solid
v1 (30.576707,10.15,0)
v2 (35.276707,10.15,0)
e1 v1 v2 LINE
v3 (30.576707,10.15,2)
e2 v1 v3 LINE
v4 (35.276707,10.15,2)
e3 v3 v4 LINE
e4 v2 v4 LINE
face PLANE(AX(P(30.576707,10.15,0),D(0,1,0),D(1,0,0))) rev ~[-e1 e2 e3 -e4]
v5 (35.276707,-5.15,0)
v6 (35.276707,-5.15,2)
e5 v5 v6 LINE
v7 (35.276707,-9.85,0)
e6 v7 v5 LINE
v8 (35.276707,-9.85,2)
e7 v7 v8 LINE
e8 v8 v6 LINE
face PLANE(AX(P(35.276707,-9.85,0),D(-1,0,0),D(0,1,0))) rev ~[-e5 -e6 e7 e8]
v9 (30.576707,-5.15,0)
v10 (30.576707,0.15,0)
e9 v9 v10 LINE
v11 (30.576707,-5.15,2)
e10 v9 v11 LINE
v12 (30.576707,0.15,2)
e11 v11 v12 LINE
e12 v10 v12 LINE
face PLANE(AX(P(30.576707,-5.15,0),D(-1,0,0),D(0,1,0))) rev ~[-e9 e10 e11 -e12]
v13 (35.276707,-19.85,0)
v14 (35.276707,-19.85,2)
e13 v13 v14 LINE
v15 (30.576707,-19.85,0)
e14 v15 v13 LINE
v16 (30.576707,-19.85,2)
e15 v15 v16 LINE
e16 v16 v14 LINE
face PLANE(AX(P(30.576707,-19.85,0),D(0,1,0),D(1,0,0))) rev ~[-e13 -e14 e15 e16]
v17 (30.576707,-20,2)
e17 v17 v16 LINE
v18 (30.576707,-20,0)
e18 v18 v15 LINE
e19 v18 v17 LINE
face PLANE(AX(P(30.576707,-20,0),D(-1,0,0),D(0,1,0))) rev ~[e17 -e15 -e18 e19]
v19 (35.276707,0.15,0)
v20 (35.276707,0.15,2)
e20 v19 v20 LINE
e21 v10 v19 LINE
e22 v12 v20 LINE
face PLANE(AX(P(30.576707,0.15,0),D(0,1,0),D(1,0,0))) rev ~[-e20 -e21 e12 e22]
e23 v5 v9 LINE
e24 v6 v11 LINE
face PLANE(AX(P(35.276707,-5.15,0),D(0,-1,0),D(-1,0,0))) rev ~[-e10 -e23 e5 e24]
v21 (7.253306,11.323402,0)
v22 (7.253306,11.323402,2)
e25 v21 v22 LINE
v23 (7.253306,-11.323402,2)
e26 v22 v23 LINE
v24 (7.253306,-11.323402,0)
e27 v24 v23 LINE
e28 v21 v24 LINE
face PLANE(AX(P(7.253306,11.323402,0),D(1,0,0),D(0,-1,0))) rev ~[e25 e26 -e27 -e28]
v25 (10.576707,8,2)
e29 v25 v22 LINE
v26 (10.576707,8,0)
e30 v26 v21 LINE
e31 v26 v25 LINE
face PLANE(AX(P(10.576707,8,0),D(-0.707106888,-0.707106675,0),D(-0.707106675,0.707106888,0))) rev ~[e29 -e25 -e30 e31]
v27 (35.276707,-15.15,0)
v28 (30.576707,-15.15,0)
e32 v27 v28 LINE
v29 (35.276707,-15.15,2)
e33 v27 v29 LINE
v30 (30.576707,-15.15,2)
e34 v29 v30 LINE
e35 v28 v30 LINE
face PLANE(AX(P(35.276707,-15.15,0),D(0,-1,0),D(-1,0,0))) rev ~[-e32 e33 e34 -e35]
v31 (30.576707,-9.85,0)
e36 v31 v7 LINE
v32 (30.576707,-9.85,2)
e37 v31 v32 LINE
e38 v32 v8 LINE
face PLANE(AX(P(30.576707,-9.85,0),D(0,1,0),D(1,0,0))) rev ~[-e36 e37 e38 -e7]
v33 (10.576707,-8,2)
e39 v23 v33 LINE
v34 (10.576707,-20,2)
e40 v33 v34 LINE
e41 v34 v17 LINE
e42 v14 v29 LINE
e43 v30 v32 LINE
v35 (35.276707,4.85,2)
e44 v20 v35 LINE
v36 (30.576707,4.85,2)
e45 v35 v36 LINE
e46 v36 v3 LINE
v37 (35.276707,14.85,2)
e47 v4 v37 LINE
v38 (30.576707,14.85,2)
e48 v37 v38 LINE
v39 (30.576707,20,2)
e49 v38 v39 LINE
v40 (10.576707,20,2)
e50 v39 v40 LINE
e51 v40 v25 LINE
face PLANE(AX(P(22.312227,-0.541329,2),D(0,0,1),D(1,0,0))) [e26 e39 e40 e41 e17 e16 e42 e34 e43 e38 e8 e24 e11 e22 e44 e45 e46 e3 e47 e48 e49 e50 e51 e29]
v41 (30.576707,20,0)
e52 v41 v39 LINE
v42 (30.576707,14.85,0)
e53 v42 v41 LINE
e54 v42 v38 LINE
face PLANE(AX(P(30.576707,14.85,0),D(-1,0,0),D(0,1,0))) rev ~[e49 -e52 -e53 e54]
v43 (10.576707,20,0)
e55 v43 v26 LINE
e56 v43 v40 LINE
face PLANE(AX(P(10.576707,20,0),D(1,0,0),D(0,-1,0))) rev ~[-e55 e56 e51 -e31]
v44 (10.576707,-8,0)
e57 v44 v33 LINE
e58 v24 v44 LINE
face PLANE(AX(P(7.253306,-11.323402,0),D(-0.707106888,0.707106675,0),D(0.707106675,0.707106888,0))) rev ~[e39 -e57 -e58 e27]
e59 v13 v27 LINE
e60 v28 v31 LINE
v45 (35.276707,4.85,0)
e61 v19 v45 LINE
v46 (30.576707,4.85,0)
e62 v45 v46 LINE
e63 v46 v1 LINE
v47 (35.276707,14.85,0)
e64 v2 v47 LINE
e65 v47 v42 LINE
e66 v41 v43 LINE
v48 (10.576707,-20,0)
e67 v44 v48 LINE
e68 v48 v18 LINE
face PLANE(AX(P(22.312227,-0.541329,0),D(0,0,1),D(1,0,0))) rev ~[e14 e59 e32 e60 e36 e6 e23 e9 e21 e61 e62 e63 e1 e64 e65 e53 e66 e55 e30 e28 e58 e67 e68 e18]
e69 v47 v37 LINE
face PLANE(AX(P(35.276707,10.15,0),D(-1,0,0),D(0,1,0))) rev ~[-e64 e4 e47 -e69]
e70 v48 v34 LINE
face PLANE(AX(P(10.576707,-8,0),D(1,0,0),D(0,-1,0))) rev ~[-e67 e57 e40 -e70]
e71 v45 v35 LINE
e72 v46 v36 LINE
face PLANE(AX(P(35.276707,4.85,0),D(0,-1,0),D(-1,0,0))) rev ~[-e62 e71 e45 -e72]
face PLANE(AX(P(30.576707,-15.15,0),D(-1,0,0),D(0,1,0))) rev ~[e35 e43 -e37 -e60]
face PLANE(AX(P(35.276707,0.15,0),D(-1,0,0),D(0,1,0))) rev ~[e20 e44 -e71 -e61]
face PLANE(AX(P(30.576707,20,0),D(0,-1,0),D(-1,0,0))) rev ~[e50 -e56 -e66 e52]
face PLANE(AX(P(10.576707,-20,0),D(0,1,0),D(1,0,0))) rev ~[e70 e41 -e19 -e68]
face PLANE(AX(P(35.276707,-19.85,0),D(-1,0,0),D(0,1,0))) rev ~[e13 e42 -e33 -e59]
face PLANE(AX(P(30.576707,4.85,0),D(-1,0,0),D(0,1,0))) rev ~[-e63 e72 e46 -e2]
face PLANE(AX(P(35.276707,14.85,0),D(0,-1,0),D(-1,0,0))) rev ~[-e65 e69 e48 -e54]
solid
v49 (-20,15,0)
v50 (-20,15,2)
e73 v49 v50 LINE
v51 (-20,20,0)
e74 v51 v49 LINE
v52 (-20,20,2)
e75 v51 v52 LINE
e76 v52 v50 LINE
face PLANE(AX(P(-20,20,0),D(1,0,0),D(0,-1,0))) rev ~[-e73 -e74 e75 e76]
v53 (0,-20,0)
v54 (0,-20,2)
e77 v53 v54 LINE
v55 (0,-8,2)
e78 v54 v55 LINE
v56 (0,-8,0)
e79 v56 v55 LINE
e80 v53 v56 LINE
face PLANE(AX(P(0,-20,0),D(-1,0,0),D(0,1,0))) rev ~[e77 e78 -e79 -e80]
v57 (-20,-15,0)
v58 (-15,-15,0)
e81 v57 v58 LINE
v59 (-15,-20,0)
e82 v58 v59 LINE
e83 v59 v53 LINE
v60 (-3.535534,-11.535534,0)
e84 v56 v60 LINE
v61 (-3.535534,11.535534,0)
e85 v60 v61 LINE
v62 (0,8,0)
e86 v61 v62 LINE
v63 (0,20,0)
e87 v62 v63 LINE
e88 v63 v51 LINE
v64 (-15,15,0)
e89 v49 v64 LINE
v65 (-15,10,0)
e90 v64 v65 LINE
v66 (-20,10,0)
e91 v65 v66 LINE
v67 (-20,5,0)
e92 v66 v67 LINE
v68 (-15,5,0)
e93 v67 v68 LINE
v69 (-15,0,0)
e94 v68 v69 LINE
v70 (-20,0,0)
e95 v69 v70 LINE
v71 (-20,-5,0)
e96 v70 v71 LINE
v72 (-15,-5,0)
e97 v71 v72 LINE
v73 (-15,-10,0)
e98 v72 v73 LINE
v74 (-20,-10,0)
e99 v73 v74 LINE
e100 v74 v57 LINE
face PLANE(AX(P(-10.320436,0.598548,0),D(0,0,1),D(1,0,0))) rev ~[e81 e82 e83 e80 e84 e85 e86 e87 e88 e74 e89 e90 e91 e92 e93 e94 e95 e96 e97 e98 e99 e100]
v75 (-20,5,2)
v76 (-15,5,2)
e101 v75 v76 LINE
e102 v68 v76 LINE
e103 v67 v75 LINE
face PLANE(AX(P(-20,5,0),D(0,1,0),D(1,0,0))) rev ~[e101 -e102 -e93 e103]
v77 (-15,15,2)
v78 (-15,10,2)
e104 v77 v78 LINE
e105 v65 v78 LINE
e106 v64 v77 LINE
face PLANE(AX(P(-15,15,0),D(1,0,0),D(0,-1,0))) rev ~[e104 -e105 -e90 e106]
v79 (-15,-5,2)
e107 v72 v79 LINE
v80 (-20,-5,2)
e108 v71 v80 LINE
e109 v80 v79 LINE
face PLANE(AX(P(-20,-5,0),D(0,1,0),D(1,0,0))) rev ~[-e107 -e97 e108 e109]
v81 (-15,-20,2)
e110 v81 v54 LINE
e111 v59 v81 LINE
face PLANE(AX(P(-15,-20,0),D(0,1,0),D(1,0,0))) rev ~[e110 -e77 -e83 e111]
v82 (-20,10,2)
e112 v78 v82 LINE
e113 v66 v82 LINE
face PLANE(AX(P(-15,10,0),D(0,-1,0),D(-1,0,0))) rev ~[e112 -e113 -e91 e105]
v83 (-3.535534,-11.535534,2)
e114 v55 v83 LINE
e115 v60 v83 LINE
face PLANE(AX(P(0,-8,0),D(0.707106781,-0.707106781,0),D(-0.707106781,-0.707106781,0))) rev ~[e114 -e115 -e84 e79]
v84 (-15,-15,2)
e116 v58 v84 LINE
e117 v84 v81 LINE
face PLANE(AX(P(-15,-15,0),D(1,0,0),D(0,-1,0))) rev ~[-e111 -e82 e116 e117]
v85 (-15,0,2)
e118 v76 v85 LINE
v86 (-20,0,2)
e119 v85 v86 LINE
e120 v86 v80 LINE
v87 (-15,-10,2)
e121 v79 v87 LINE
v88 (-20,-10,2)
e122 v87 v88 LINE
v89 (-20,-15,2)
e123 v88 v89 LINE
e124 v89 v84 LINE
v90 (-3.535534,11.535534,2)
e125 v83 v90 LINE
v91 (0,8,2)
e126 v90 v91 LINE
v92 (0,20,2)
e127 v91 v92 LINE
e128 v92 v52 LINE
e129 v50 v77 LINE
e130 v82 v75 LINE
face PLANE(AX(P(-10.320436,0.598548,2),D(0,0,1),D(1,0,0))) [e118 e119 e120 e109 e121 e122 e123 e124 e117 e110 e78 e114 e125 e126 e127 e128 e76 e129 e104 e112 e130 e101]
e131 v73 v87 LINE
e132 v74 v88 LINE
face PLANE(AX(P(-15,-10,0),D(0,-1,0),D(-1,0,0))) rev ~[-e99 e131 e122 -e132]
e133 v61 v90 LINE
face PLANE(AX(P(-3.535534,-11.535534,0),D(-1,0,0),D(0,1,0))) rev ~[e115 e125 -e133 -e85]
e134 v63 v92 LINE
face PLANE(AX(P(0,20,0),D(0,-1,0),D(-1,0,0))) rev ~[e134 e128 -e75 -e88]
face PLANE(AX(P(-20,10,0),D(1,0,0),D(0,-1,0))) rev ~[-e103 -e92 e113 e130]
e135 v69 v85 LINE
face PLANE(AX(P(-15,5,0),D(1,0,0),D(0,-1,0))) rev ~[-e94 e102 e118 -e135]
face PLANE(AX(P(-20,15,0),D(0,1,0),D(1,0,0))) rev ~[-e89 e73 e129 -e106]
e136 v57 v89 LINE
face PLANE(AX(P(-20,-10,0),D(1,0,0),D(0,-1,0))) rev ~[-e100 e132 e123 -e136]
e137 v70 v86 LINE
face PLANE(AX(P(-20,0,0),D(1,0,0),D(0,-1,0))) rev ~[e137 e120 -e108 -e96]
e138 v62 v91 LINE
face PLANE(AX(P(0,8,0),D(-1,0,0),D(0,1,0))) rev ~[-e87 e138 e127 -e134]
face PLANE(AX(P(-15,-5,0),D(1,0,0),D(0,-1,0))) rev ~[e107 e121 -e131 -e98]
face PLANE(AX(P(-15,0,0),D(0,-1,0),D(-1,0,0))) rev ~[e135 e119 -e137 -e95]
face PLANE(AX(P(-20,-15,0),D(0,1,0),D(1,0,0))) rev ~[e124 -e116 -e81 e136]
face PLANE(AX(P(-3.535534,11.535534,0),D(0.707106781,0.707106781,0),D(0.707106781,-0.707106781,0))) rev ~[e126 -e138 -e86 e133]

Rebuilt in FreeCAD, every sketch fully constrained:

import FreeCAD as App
import Part
import Sketcher

doc = App.newDocument("Part")
body = doc.addObject("PartDesign::Body", "Body")
body.AllowCompound = True

# Sketch on XY plane
sketch1 = body.newObject("Sketcher::SketchObject", "Sketch")
sketch1.AttachmentSupport = (doc.getObject("XY_Plane"), [""])
sketch1.MapMode = "FlatFace"
sketch1.addGeometry(Part.LineSegment(App.Vector(30.576707, 20, 0), App.Vector(10.576707, 20, 0)), False)
sketch1.addGeometry(Part.LineSegment(App.Vector(10.576707, 20, 0), App.Vector(10.576707, 8, 0)), False)
sketch1.addGeometry(Part.LineSegment(App.Vector(10.576707, 8, 0), App.Vector(7.253306, 11.323402, 0)), False)
sketch1.addGeometry(Part.LineSegment(App.Vector(7.253306, 11.323402, 0), App.Vector(7.253306, -11.323402, 0)), False)
sketch1.addGeometry(Part.LineSegment(App.Vector(7.253306, -11.323402, 0), App.Vector(10.576707, -8, 0)), False)
sketch1.addGeometry(Part.LineSegment(App.Vector(10.576707, -8, 0), App.Vector(10.576707, -20, 0)), False)
sketch1.addGeometry(Part.LineSegment(App.Vector(10.576707, -20, 0), App.Vector(30.576707, -20, 0)), False)
sketch1.addGeometry(Part.LineSegment(App.Vector(30.576707, -20, 0), App.Vector(30.576707, -19.85, 0)), False)
sketch1.addGeometry(Part.LineSegment(App.Vector(30.576707, -19.85, 0), App.Vector(35.276707, -19.85, 0)), False)
sketch1.addGeometry(Part.LineSegment(App.Vector(35.276707, -19.85, 0), App.Vector(35.276707, -15.15, 0)), False)
sketch1.addGeometry(Part.LineSegment(App.Vector(35.276707, -15.15, 0), App.Vector(30.576707, -15.15, 0)), False)
sketch1.addGeometry(Part.LineSegment(App.Vector(30.576707, -15.15, 0), App.Vector(30.576707, -9.85, 0)), False)
sketch1.addGeometry(Part.LineSegment(App.Vector(30.576707, -9.85, 0), App.Vector(35.276707, -9.85, 0)), False)
sketch1.addGeometry(Part.LineSegment(App.Vector(35.276707, -9.85, 0), App.Vector(35.276707, -5.15, 0)), False)
sketch1.addGeometry(Part.LineSegment(App.Vector(35.276707, -5.15, 0), App.Vector(30.576707, -5.15, 0)), False)
sketch1.addGeometry(Part.LineSegment(App.Vector(30.576707, -5.15, 0), App.Vector(30.576707, 0.15, 0)), False)
sketch1.addGeometry(Part.LineSegment(App.Vector(30.576707, 0.15, 0), App.Vector(35.276707, 0.15, 0)), False)
sketch1.addGeometry(Part.LineSegment(App.Vector(35.276707, 0.15, 0), App.Vector(35.276707, 4.85, 0)), False)
sketch1.addGeometry(Part.LineSegment(App.Vector(35.276707, 4.85, 0), App.Vector(30.576707, 4.85, 0)), False)
sketch1.addGeometry(Part.LineSegment(App.Vector(30.576707, 4.85, 0), App.Vector(30.576707, 10.15, 0)), False)
sketch1.addGeometry(Part.LineSegment(App.Vector(30.576707, 10.15, 0), App.Vector(35.276707, 10.15, 0)), False)
sketch1.addGeometry(Part.LineSegment(App.Vector(35.276707, 10.15, 0), App.Vector(35.276707, 14.85, 0)), False)
sketch1.addGeometry(Part.LineSegment(App.Vector(35.276707, 14.85, 0), App.Vector(30.576707, 14.85, 0)), False)
sketch1.addGeometry(Part.LineSegment(App.Vector(30.576707, 14.85, 0), App.Vector(30.576707, 20, 0)), False)
sketch1.addGeometry(Part.LineSegment(App.Vector(0, 8, 0), App.Vector(0, 20, 0)), False)
sketch1.addGeometry(Part.LineSegment(App.Vector(0, 20, 0), App.Vector(-20, 20, 0)), False)
sketch1.addGeometry(Part.LineSegment(App.Vector(-20, 20, 0), App.Vector(-20, 15, 0)), False)
sketch1.addGeometry(Part.LineSegment(App.Vector(-20, 15, 0), App.Vector(-15, 15, 0)), False)
sketch1.addGeometry(Part.LineSegment(App.Vector(-15, 15, 0), App.Vector(-15, 10, 0)), False)
sketch1.addGeometry(Part.LineSegment(App.Vector(-15, 10, 0), App.Vector(-20, 10, 0)), False)
sketch1.addGeometry(Part.LineSegment(App.Vector(-20, 10, 0), App.Vector(-20, 5, 0)), False)
sketch1.addGeometry(Part.LineSegment(App.Vector(-20, 5, 0), App.Vector(-15, 5, 0)), False)
sketch1.addGeometry(Part.LineSegment(App.Vector(-15, 5, 0), App.Vector(-15, 0, 0)), False)
sketch1.addGeometry(Part.LineSegment(App.Vector(-15, 0, 0), App.Vector(-20, 0, 0)), False)
sketch1.addGeometry(Part.LineSegment(App.Vector(-20, 0, 0), App.Vector(-20, -5, 0)), False)
sketch1.addGeometry(Part.LineSegment(App.Vector(-20, -5, 0), App.Vector(-15, -5, 0)), False)
sketch1.addGeometry(Part.LineSegment(App.Vector(-15, -5, 0), App.Vector(-15, -10, 0)), False)
sketch1.addGeometry(Part.LineSegment(App.Vector(-15, -10, 0), App.Vector(-20, -10, 0)), False)
sketch1.addGeometry(Part.LineSegment(App.Vector(-20, -10, 0), App.Vector(-20, -15, 0)), False)
sketch1.addGeometry(Part.LineSegment(App.Vector(-20, -15, 0), App.Vector(-15, -15, 0)), False)
sketch1.addGeometry(Part.LineSegment(App.Vector(-15, -15, 0), App.Vector(-15, -20, 0)), False)
sketch1.addGeometry(Part.LineSegment(App.Vector(-15, -20, 0), App.Vector(0, -20, 0)), False)
sketch1.addGeometry(Part.LineSegment(App.Vector(0, -20, 0), App.Vector(0, -8, 0)), False)
sketch1.addGeometry(Part.LineSegment(App.Vector(0, -8, 0), App.Vector(-3.535534, -11.535534, 0)), False)
sketch1.addGeometry(Part.LineSegment(App.Vector(-3.535534, -11.535534, 0), App.Vector(-3.535534, 11.535534, 0)), False)
sketch1.addGeometry(Part.LineSegment(App.Vector(-3.535534, 11.535534, 0), App.Vector(0, 8, 0)), False)
sketch1.addConstraint(Sketcher.Constraint("Coincident", 0, 2, 1, 1))
sketch1.addConstraint(Sketcher.Constraint("Coincident", 1, 2, 2, 1))
sketch1.addConstraint(Sketcher.Constraint("Coincident", 2, 2, 3, 1))
sketch1.addConstraint(Sketcher.Constraint("Coincident", 3, 2, 4, 1))
sketch1.addConstraint(Sketcher.Constraint("Coincident", 4, 2, 5, 1))
sketch1.addConstraint(Sketcher.Constraint("Coincident", 5, 2, 6, 1))
sketch1.addConstraint(Sketcher.Constraint("Coincident", 6, 2, 7, 1))
sketch1.addConstraint(Sketcher.Constraint("Coincident", 7, 2, 8, 1))
sketch1.addConstraint(Sketcher.Constraint("Coincident", 8, 2, 9, 1))
sketch1.addConstraint(Sketcher.Constraint("Coincident", 9, 2, 10, 1))
sketch1.addConstraint(Sketcher.Constraint("Coincident", 10, 2, 11, 1))
sketch1.addConstraint(Sketcher.Constraint("Coincident", 11, 2, 12, 1))
sketch1.addConstraint(Sketcher.Constraint("Coincident", 12, 2, 13, 1))
sketch1.addConstraint(Sketcher.Constraint("Coincident", 13, 2, 14, 1))
sketch1.addConstraint(Sketcher.Constraint("Coincident", 14, 2, 15, 1))
sketch1.addConstraint(Sketcher.Constraint("Coincident", 15, 2, 16, 1))
sketch1.addConstraint(Sketcher.Constraint("Coincident", 16, 2, 17, 1))
sketch1.addConstraint(Sketcher.Constraint("Coincident", 17, 2, 18, 1))
sketch1.addConstraint(Sketcher.Constraint("Coincident", 18, 2, 19, 1))
sketch1.addConstraint(Sketcher.Constraint("Coincident", 19, 2, 20, 1))
sketch1.addConstraint(Sketcher.Constraint("Coincident", 20, 2, 21, 1))
sketch1.addConstraint(Sketcher.Constraint("Coincident", 21, 2, 22, 1))
sketch1.addConstraint(Sketcher.Constraint("Coincident", 22, 2, 23, 1))
sketch1.addConstraint(Sketcher.Constraint("Coincident", 23, 2, 0, 1))
sketch1.addConstraint(Sketcher.Constraint("Coincident", 24, 2, 25, 1))
sketch1.addConstraint(Sketcher.Constraint("Coincident", 25, 2, 26, 1))
sketch1.addConstraint(Sketcher.Constraint("Coincident", 26, 2, 27, 1))
sketch1.addConstraint(Sketcher.Constraint("Coincident", 27, 2, 28, 1))
sketch1.addConstraint(Sketcher.Constraint("Coincident", 28, 2, 29, 1))
sketch1.addConstraint(Sketcher.Constraint("Coincident", 29, 2, 30, 1))
sketch1.addConstraint(Sketcher.Constraint("Coincident", 30, 2, 31, 1))
sketch1.addConstraint(Sketcher.Constraint("Coincident", 31, 2, 32, 1))
sketch1.addConstraint(Sketcher.Constraint("Coincident", 32, 2, 33, 1))
sketch1.addConstraint(Sketcher.Constraint("Coincident", 33, 2, 34, 1))
sketch1.addConstraint(Sketcher.Constraint("Coincident", 34, 2, 35, 1))
sketch1.addConstraint(Sketcher.Constraint("Coincident", 35, 2, 36, 1))
sketch1.addConstraint(Sketcher.Constraint("Coincident", 36, 2, 37, 1))
sketch1.addConstraint(Sketcher.Constraint("Coincident", 37, 2, 38, 1))
sketch1.addConstraint(Sketcher.Constraint("Coincident", 38, 2, 39, 1))
sketch1.addConstraint(Sketcher.Constraint("Coincident", 39, 2, 40, 1))
sketch1.addConstraint(Sketcher.Constraint("Coincident", 40, 2, 41, 1))
sketch1.addConstraint(Sketcher.Constraint("Coincident", 41, 2, 42, 1))
sketch1.addConstraint(Sketcher.Constraint("Coincident", 42, 2, 43, 1))
sketch1.addConstraint(Sketcher.Constraint("Coincident", 43, 2, 44, 1))
sketch1.addConstraint(Sketcher.Constraint("Coincident", 44, 2, 45, 1))
sketch1.addConstraint(Sketcher.Constraint("Coincident", 45, 2, 24, 1))
sketch1.addConstraint(Sketcher.Constraint("Horizontal", 0))
sketch1.addConstraint(Sketcher.Constraint("Vertical", 1))
sketch1.addConstraint(Sketcher.Constraint("Vertical", 3))
sketch1.addConstraint(Sketcher.Constraint("Vertical", 5))
sketch1.addConstraint(Sketcher.Constraint("Horizontal", 6))
sketch1.addConstraint(Sketcher.Constraint("Vertical", 7))
sketch1.addConstraint(Sketcher.Constraint("Horizontal", 8))
sketch1.addConstraint(Sketcher.Constraint("Vertical", 9))
sketch1.addConstraint(Sketcher.Constraint("Horizontal", 10))
sketch1.addConstraint(Sketcher.Constraint("Vertical", 11))
sketch1.addConstraint(Sketcher.Constraint("Horizontal", 12))
sketch1.addConstraint(Sketcher.Constraint("Vertical", 13))
sketch1.addConstraint(Sketcher.Constraint("Horizontal", 14))
sketch1.addConstraint(Sketcher.Constraint("Vertical", 15))
sketch1.addConstraint(Sketcher.Constraint("Horizontal", 16))
sketch1.addConstraint(Sketcher.Constraint("Vertical", 17))
sketch1.addConstraint(Sketcher.Constraint("Horizontal", 18))
sketch1.addConstraint(Sketcher.Constraint("Vertical", 19))
sketch1.addConstraint(Sketcher.Constraint("Horizontal", 20))
sketch1.addConstraint(Sketcher.Constraint("Vertical", 21))
sketch1.addConstraint(Sketcher.Constraint("Horizontal", 22))
sketch1.addConstraint(Sketcher.Constraint("Vertical", 23))
sketch1.addConstraint(Sketcher.Constraint("Vertical", 24))
sketch1.addConstraint(Sketcher.Constraint("Horizontal", 25))
sketch1.addConstraint(Sketcher.Constraint("Vertical", 26))
sketch1.addConstraint(Sketcher.Constraint("Horizontal", 27))
sketch1.addConstraint(Sketcher.Constraint("Vertical", 28))
sketch1.addConstraint(Sketcher.Constraint("Horizontal", 29))
sketch1.addConstraint(Sketcher.Constraint("Vertical", 30))
sketch1.addConstraint(Sketcher.Constraint("Horizontal", 31))
sketch1.addConstraint(Sketcher.Constraint("Vertical", 32))
sketch1.addConstraint(Sketcher.Constraint("Horizontal", 33))
sketch1.addConstraint(Sketcher.Constraint("Vertical", 34))
sketch1.addConstraint(Sketcher.Constraint("Horizontal", 35))
sketch1.addConstraint(Sketcher.Constraint("Vertical", 36))
sketch1.addConstraint(Sketcher.Constraint("Horizontal", 37))
sketch1.addConstraint(Sketcher.Constraint("Vertical", 38))
sketch1.addConstraint(Sketcher.Constraint("Horizontal", 39))
sketch1.addConstraint(Sketcher.Constraint("Vertical", 40))
sketch1.addConstraint(Sketcher.Constraint("Horizontal", 41))
sketch1.addConstraint(Sketcher.Constraint("Vertical", 42))
sketch1.addConstraint(Sketcher.Constraint("Vertical", 44))
sketch1.addConstraint(Sketcher.Constraint("Symmetric", 24, 2, 41, 2, -1, 1))
sketch1.addConstraint(Sketcher.Constraint("Symmetric", 1, 2, 4, 2, -1))
sketch1.addConstraint(Sketcher.Constraint("Symmetric", 6, 2, 23, 2, -1))
sketch1.addConstraint(Sketcher.Constraint("Symmetric", 30, 2, 34, 2, -1))
sketch1.addConstraint(Sketcher.Constraint("Symmetric", 28, 2, 36, 2, -1))
sketch1.addConstraint(Sketcher.Constraint("Symmetric", 26, 2, 38, 2, -1))
sketch1.addConstraint(Sketcher.Constraint("Symmetric", 42, 2, 45, 2, -1))
sketch1.addConstraint(Sketcher.Constraint("PointOnObject", 32, 2, -1))
sketch1.addConstraint(Sketcher.Constraint("Perpendicular", 2, 4))
sketch1.addConstraint(Sketcher.Constraint("Parallel", 4, 43))
sketch1.addConstraint(Sketcher.Constraint("Perpendicular", 43, 45))
sketch1.addConstraint(Sketcher.Constraint("Horizontal", 23, 2, 24, 2))
sketch1.addConstraint(Sketcher.Constraint("Horizontal", 4, 2, 42, 2))
sketch1.addConstraint(Sketcher.Constraint("Vertical", 7, 2, 10, 2))
sketch1.addConstraint(Sketcher.Constraint("Vertical", 9, 2, 12, 2))
sketch1.addConstraint(Sketcher.Constraint("Vertical", 11, 2, 14, 2))
sketch1.addConstraint(Sketcher.Constraint("Vertical", 13, 2, 16, 2))
sketch1.addConstraint(Sketcher.Constraint("Vertical", 15, 2, 18, 2))
sketch1.addConstraint(Sketcher.Constraint("Vertical", 17, 2, 20, 2))
sketch1.addConstraint(Sketcher.Constraint("Vertical", 26, 2, 29, 2))
sketch1.addConstraint(Sketcher.Constraint("Vertical", 28, 2, 31, 2))
sketch1.addConstraint(Sketcher.Constraint("Vertical", 36, 2, 39, 2))
sketch1.addConstraint(Sketcher.Constraint("Equal", 6, 25))
sketch1.addConstraint(Sketcher.Constraint("Equal", 22, 9))
sketch1.addConstraint(Sketcher.Constraint("Equal", 9, 13))
sketch1.addConstraint(Sketcher.Constraint("Equal", 11, 15))
sketch1.addConstraint(Sketcher.Constraint("Equal", 13, 17))
sketch1.addConstraint(Sketcher.Constraint("Equal", 15, 19))
sketch1.addConstraint(Sketcher.Constraint("Equal", 17, 21))
sketch1.addConstraint(Sketcher.Constraint("Equal", 39, 26))
sketch1.addConstraint(Sketcher.Constraint("Equal", 26, 28))
sketch1.addConstraint(Sketcher.Constraint("Equal", 28, 30))
sketch1.addConstraint(Sketcher.Constraint("Equal", 30, 32))
sketch1.addConstraint(Sketcher.Constraint("Equal", 2, 4))
sketch1.addConstraint(Sketcher.Constraint("DistanceX", 0, 2, 0, 1, 20.0))
sketch1.addConstraint(Sketcher.Constraint("DistanceX", 27, 1, 27, 2, 5.0))
sketch1.addConstraint(Sketcher.Constraint("DistanceY", 1, 2, 1, 1, 12.0))
sketch1.addConstraint(Sketcher.Constraint("Distance", 43, 5.0))
sketch1.addConstraint(Sketcher.Constraint("DistanceX", 8, 1, 8, 2, 4.7))
sketch1.addConstraint(Sketcher.Constraint("DistanceY", 11, 1, 11, 2, 5.3))
sketch1.addConstraint(Sketcher.Constraint("Distance", 2, 4.699999))
sketch1.addConstraint(Sketcher.Constraint("DistanceY", 7, 1, 7, 2, 0.15))
sketch1.addConstraint(Sketcher.Constraint("DistanceX", 43, 2, 3, 2, 10.78884))
pad1 = body.newObject("PartDesign::Pad", "Pad")
pad1.Profile = sketch1
pad1.Length = 2

doc.recompute()
